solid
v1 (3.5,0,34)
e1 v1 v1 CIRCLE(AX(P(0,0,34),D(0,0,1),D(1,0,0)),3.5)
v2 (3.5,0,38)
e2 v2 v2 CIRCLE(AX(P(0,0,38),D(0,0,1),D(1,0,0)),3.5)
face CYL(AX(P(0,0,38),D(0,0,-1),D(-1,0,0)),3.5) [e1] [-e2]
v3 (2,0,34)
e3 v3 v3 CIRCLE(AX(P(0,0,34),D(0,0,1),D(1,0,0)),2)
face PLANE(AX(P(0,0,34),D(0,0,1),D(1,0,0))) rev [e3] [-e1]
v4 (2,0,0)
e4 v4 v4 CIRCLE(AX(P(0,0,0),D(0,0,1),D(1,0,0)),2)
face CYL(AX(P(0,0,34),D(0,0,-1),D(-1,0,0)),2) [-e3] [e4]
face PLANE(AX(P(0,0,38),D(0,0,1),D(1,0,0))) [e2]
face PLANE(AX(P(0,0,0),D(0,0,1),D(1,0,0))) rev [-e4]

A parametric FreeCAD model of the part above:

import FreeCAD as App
import Part
import Sketcher
from FreeCAD import Vector

doc = App.newDocument("Part")
params = doc.addObject("Spreadsheet::Sheet", "Params")
for row, (alias, value) in enumerate([
    ("sketch1_diameter", "4 mm"),
    ("pad1_length", "34 mm"),
    ("sketch2_diameter", "7 mm"),
    ("pad2_length", "4 mm"),
], start=1):
    params.set(f"A{row}", alias)
    params.set(f"B{row}", "=" + value)
    params.setAlias(f"B{row}", alias)

body = doc.addObject("PartDesign::Body", "Body")

sketch1 = body.newObject("Sketcher::SketchObject", "Sketch")
sketch1.AttachmentSupport = (doc.getObject("XY_Plane"), [""])
sketch1.MapMode = "FlatFace"
sketch1.addGeometry(Part.Circle(Vector(0, 0, 0), Vector(0, 0, 1), 2), False)
sketch1.addConstraint(Sketcher.Constraint("Coincident", 0, 3, -1, 1))
sketch1.addConstraint(Sketcher.Constraint("Diameter", 0, 4.0))
sketch1.setExpression("Constraints[1]", "Params.sketch1_diameter")
pad1 = body.newObject("PartDesign::Pad", "Pad")
pad1.Profile = sketch1
pad1.setExpression("Length", "Params.pad1_length")

sketch2 = body.newObject("Sketcher::SketchObject", "Sketch001")
sketch2.AttachmentSupport = (doc.getObject("XY_Plane"), [""])
sketch2.MapMode = "FlatFace"
sketch2.AttachmentOffset = App.Placement(Vector(0, 0, 34), App.Rotation())
sketch2.addGeometry(Part.Circle(Vector(0, 0, 0), Vector(0, 0, 1), 3.5), False)
sketch2.addConstraint(Sketcher.Constraint("Coincident", 0, 3, -1, 1))
sketch2.addConstraint(Sketcher.Constraint("Diameter", 0, 7.0))
sketch2.setExpression("Constraints[1]", "Params.sketch2_diameter")
pad2 = body.newObject("PartDesign::Pad", "Pad001")
pad2.Profile = sketch2
pad2.setExpression("Length", "Params.pad2_length")

doc.recompute()
